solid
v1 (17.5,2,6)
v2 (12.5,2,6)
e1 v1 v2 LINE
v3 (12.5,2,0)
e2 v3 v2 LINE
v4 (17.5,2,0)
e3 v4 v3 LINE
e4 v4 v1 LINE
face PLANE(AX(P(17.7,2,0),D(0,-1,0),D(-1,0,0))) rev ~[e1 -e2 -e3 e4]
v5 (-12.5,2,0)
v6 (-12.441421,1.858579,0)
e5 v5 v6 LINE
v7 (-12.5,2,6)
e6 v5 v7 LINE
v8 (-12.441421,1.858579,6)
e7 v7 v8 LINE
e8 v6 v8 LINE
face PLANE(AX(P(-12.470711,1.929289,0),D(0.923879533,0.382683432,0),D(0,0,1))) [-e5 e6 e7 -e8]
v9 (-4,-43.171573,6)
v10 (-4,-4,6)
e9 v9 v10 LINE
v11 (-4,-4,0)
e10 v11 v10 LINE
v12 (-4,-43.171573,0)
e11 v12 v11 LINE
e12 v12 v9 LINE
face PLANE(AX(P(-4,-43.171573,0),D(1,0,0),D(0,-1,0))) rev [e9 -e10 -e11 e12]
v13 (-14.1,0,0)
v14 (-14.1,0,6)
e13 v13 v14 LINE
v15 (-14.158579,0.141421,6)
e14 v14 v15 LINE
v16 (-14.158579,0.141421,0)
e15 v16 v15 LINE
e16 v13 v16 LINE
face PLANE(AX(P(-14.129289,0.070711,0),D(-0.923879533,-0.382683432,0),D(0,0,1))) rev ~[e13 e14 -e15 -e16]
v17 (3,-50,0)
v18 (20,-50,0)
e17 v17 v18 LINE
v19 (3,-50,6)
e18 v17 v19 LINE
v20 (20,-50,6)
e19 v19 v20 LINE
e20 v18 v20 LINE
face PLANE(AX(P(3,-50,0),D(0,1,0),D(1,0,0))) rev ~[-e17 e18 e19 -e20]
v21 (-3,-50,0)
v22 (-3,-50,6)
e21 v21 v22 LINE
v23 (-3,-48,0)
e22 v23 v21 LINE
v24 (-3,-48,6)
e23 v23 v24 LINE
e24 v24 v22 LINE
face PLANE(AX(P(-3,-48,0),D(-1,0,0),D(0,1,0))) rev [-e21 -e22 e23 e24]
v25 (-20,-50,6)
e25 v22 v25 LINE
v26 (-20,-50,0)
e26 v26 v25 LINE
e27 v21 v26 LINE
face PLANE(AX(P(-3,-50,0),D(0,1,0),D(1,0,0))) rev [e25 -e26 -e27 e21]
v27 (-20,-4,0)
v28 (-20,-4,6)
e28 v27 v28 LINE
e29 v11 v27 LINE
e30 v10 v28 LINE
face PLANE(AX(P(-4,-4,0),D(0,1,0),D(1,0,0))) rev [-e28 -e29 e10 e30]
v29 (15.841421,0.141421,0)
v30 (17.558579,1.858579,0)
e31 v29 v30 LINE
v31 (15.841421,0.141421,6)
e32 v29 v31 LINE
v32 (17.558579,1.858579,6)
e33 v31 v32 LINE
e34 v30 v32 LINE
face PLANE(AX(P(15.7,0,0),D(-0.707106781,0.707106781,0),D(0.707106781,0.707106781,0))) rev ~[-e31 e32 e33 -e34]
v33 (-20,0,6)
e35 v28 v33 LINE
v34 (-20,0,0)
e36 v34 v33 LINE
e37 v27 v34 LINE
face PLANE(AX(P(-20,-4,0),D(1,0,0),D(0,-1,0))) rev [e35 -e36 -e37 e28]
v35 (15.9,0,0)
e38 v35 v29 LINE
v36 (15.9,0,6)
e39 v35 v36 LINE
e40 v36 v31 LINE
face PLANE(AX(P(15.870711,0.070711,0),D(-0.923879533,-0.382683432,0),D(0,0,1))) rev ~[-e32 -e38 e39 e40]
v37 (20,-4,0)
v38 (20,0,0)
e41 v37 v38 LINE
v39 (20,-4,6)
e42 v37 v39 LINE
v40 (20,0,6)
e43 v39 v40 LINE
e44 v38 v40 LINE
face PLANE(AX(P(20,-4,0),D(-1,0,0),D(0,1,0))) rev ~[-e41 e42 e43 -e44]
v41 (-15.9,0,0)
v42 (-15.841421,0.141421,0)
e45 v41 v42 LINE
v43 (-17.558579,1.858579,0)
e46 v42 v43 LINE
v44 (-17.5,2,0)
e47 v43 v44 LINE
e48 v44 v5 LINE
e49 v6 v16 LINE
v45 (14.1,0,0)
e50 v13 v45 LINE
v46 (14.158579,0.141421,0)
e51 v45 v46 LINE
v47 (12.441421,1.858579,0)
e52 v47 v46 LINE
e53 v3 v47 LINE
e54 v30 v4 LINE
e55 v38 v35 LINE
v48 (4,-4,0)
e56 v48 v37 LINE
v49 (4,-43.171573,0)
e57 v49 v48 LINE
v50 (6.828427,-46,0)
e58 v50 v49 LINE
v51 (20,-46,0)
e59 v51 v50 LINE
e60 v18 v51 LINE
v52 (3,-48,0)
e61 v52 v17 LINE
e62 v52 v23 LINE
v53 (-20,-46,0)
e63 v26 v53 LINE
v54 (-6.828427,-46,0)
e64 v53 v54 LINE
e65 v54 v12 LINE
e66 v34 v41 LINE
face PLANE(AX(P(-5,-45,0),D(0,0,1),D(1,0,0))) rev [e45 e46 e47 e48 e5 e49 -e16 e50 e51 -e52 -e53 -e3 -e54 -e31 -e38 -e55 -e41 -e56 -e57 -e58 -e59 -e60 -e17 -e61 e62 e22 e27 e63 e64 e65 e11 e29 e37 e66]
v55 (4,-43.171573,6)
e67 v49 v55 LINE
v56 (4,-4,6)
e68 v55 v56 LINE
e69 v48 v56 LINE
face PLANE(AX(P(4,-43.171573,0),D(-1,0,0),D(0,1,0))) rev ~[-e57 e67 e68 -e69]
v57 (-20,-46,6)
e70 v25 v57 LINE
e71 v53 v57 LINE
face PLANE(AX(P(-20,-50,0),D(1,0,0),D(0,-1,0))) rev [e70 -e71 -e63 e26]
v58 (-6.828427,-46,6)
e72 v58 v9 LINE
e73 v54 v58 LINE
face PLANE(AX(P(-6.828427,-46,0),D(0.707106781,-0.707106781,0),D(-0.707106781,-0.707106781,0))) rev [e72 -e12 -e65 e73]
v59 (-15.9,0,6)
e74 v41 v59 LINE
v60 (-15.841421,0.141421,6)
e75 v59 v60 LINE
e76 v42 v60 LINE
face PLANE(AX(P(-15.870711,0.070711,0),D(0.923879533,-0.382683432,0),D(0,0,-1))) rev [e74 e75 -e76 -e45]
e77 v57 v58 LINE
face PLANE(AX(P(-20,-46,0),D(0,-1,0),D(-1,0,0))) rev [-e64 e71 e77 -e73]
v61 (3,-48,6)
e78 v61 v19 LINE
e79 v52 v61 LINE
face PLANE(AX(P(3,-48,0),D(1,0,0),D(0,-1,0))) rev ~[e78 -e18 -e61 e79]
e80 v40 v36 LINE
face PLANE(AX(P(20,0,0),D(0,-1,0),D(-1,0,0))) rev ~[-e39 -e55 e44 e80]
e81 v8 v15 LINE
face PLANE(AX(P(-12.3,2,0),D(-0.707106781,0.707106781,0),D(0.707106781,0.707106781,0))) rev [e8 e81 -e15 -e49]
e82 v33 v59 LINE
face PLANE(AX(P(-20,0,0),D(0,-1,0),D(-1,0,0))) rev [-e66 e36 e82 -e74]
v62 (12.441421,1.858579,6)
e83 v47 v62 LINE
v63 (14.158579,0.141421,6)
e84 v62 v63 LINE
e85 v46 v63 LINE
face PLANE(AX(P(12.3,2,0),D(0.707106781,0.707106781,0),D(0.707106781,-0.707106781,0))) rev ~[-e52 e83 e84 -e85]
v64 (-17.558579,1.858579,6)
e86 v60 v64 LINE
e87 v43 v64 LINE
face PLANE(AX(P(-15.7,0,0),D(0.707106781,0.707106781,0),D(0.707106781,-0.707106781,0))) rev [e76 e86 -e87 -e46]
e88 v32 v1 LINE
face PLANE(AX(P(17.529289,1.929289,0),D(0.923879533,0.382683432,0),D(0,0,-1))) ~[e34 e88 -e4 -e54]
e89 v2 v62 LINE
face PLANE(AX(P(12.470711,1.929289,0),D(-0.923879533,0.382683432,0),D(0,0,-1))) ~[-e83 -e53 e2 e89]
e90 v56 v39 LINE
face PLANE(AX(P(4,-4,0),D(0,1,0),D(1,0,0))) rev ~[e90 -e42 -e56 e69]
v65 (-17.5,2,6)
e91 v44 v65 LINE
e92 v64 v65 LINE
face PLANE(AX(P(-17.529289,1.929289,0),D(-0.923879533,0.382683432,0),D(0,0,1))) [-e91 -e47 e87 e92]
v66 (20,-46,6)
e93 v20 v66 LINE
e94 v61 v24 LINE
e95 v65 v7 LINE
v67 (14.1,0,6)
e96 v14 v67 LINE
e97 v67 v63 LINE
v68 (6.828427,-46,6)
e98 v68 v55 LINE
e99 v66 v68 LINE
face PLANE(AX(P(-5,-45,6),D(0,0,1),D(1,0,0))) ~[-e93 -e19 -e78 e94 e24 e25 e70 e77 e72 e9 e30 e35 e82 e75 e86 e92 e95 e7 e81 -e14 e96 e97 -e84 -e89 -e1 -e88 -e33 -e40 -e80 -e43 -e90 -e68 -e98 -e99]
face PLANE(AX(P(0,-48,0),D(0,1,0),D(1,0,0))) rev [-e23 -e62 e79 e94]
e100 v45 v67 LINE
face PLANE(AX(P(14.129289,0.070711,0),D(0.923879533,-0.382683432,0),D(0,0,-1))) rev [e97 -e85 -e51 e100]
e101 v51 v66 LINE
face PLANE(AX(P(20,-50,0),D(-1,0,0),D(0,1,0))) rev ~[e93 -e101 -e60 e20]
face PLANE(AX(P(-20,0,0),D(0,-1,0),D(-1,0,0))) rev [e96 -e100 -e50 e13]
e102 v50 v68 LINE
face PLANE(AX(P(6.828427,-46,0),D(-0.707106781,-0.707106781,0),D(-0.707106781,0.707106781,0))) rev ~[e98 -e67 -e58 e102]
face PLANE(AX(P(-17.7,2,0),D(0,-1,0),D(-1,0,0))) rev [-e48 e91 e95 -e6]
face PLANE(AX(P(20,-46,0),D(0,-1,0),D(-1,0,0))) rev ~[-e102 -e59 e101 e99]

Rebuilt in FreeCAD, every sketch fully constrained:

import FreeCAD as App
import Part
import Sketcher
from FreeCAD import Vector
Q = App.Units.Quantity


def edges_at(feature, points):
    """Names of the edges that pass closest to the given points."""
    edges = feature.Shape.Edges
    near = lambda p: min(range(len(edges)), key=lambda i: edges[i].distToShape(Part.Vertex(*p))[0])
    return sorted({f"Edge{near(p) + 1}" for p in points})

doc = App.newDocument("Part")
params = doc.addObject("Spreadsheet::Sheet", "Params")
for row, (alias, value) in enumerate([
    ("sketch1_width", "16 mm"),
    ("sketch1_width2", "20 mm"),
    ("sketch1_width3", "3 mm"),
    ("sketch1_height", "4 mm"),
    ("sketch1_height2", "48 mm"),
    ("pad1_length", "6 mm"),
    ("sketch2_width", "1.4 mm"),
    ("sketch2_width2", "5.4 mm"),
    ("pad2_length", "6 mm"),
    ("chamfer_size", "0.2 mm"),
], start=1):
    params.set(f"A{row}", alias)
    params.set(f"B{row}", "=" + value)
    params.setAlias(f"B{row}", alias)

body = doc.addObject("PartDesign::Body", "Body")

sketch1 = doc.addObject("Sketcher::SketchObject", "Sketch")
body.addObject(sketch1)
sketch1.AttachmentSupport = (doc.XY_Plane, [""])
sketch1.MapMode = "FlatFace"
sketch1.addGeometry([
    Part.LineSegment(Vector(6.828427, -46, 0), Vector(4, -43.171573, 0)),
    Part.LineSegment(Vector(4, -43.171573, 0), Vector(4, -4, 0)),
    Part.LineSegment(Vector(4, -4, 0), Vector(20, -4, 0)),
    Part.LineSegment(Vector(20, -4, 0), Vector(20, 0, 0)),
    Part.LineSegment(Vector(20, 0, 0), Vector(0, 0, 0)),
    Part.LineSegment(Vector(0, 0, 0), Vector(0, -48, 0)),
    Part.LineSegment(Vector(0, -48, 0), Vector(3, -48, 0)),
    Part.LineSegment(Vector(3, -48, 0), Vector(3, -50, 0)),
    Part.LineSegment(Vector(3, -50, 0), Vector(20, -50, 0)),
    Part.LineSegment(Vector(20, -50, 0), Vector(20, -46, 0)),
    Part.LineSegment(Vector(20, -46, 0), Vector(6.828427, -46, 0)),
], False)
sketch1.addConstraint([
    Sketcher.Constraint("Coincident", 0, 2, 1, 1),
    Sketcher.Constraint("Coincident", 1, 2, 2, 1),
    Sketcher.Constraint("Coincident", 2, 2, 3, 1),
    Sketcher.Constraint("Coincident", 3, 2, 4, 1),
    Sketcher.Constraint("Coincident", 4, 2, 5, 1),
    Sketcher.Constraint("Coincident", 5, 2, 6, 1),
    Sketcher.Constraint("Coincident", 6, 2, 7, 1),
    Sketcher.Constraint("Coincident", 7, 2, 8, 1),
    Sketcher.Constraint("Coincident", 8, 2, 9, 1),
    Sketcher.Constraint("Coincident", 9, 2, 10, 1),
    Sketcher.Constraint("Coincident", 10, 2, 0, 1),
    Sketcher.Constraint("Vertical", 1),
    Sketcher.Constraint("Horizontal", 2),
    Sketcher.Constraint("Vertical", 3),
    Sketcher.Constraint("Horizontal", 4),
    Sketcher.Constraint("Vertical", 5),
    Sketcher.Constraint("Horizontal", 6),
    Sketcher.Constraint("Vertical", 7),
    Sketcher.Constraint("Horizontal", 8),
    Sketcher.Constraint("Vertical", 9),
    Sketcher.Constraint("Horizontal", 10),
    Sketcher.Constraint("Coincident", 4, 2, -1, 1),
    Sketcher.Constraint("Vertical", 3, 2, 8, 2),
    Sketcher.Constraint("Equal", 3, 9),
    Sketcher.Constraint("DistanceX", 2, 1, 2, 2, 16.0),
    Sketcher.Constraint("DistanceX", 4, 2, 4, 1, 20.0),
    Sketcher.Constraint("DistanceX", 6, 1, 6, 2, 3.0),
    Sketcher.Constraint("DistanceY", 3, 1, 3, 2, 4.0),
    Sketcher.Constraint("DistanceY", 5, 2, 5, 1, 48.0),
    Sketcher.Constraint("DistanceY", 7, 2, 7, 1, 2.0),
    Sketcher.Constraint("Angle", 0, Q("135 deg")),
    Sketcher.Constraint("Distance", 0, 4.0),
])
sketch1.setExpression("Constraints[24]", "Params.sketch1_width")
sketch1.setExpression("Constraints[25]", "Params.sketch1_width2")
sketch1.setExpression("Constraints[26]", "Params.sketch1_width3")
sketch1.setExpression("Constraints[27]", "Params.sketch1_height")
sketch1.setExpression("Constraints[28]", "Params.sketch1_height2")
pad1 = doc.addObject("PartDesign::Pad", "Pad")
body.addObject(pad1)
pad1.Profile = sketch1
pad1.setExpression("Length", "Params.pad1_length")

sketch2 = doc.addObject("Sketcher::SketchObject", "Sketch001")
body.addObject(sketch2)
sketch2.AttachmentSupport = (doc.XY_Plane, [""])
sketch2.MapMode = "FlatFace"
sketch2.addGeometry([
    Part.LineSegment(Vector(14.3, 0, 0), Vector(15.7, 0, 0)),
    Part.LineSegment(Vector(15.7, 0, 0), Vector(17.7, 2, 0)),
    Part.LineSegment(Vector(17.7, 2, 0), Vector(12.3, 2, 0)),
    Part.LineSegment(Vector(12.3, 2, 0), Vector(14.3, 0, 0)),
], False)
sketch2.addConstraint([
    Sketcher.Constraint("Coincident", 0, 2, 1, 1),
    Sketcher.Constraint("Coincident", 1, 2, 2, 1),
    Sketcher.Constraint("Coincident", 2, 2, 3, 1),
    Sketcher.Constraint("Coincident", 3, 2, 0, 1),
    Sketcher.Constraint("Horizontal", 0),
    Sketcher.Constraint("Horizontal", 2),
    Sketcher.Constraint("PointOnObject", 0, 2, -1),
    Sketcher.Constraint("Perpendicular", 1, 3),
    Sketcher.Constraint("Equal", 1, 3),
    Sketcher.Constraint("DistanceX", 0, 1, 0, 2, 1.4),
    Sketcher.Constraint("DistanceX", 2, 2, 2, 1, 5.4),
    Sketcher.Constraint("DistanceX", -1, 1, 0, 2, 15.7),
])
sketch2.setExpression("Constraints[9]", "Params.sketch2_width")
sketch2.setExpression("Constraints[10]", "Params.sketch2_width2")
pad2 = doc.addObject("PartDesign::Pad", "Pad001")
body.addObject(pad2)
pad2.Profile = sketch2
pad2.setExpression("Length", "Params.pad2_length")
doc.recompute()

chamfer = doc.addObject("PartDesign::Chamfer", "Chamfer")
body.addObject(chamfer)
chamfer.Base = (pad2, edges_at(pad2, [
    (17.7, 2, 3),
    (12.3, 2, 3),
    (15.7, 0, 3),
    (14.3, 0, 3),
]))
chamfer.setExpression("Size", "Params.chamfer_size")
body2 = doc.addObject("PartDesign::Body", "Body001")
doc.recompute()

body2.BaseFeature = body
doc.recompute()

mirroring = doc.addObject("Part::Mirroring", "Mirroring")
mirroring.Source = body
mirroring.Base = Vector(0, -24, 3)
mirroring.Normal = Vector(-1, 0, 0)
body3 = doc.addObject("PartDesign::Body", "Body002")
body3.BaseFeature = mirroring
boolean = doc.addObject("PartDesign::Boolean", "Boolean")
body2.addObject(boolean)
boolean.Type = "Fuse"
boolean.addObjects([body3])
doc.recompute()
mirroring.Visibility = False

doc.recompute()
